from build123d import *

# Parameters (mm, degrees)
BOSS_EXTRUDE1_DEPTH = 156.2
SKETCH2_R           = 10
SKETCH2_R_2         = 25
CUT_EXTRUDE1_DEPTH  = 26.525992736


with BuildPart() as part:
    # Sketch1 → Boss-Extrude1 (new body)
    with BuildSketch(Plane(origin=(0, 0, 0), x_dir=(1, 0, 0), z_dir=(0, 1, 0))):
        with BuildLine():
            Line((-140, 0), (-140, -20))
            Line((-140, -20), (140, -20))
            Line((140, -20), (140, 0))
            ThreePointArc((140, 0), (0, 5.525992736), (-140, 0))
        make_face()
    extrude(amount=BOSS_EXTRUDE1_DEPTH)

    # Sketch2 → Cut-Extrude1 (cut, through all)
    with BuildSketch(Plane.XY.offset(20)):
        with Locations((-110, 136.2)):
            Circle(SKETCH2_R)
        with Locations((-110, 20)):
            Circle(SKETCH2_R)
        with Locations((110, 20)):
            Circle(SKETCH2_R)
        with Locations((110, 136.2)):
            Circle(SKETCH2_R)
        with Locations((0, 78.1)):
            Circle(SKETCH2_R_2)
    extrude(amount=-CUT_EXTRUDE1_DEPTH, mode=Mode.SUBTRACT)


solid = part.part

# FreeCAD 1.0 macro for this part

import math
import FreeCAD as App
import Part
import Sketcher
from FreeCAD import Vector
Q = App.Units.Quantity

doc = App.newDocument("Part")
body = doc.addObject("PartDesign::Body", "Body")

# Sketch on XZ plane
sketch1 = body.newObject("Sketcher::SketchObject", "Sketch")
sketch1.AttachmentSupport = (doc.getObject("XZ_Plane"), [""])
sketch1.MapMode = "FlatFace"
sketch1.addGeometry([
    Part.LineSegment(Vector(-140, 0, 0), Vector(-140, 20, 0)),
    Part.LineSegment(Vector(-140, 20, 0), Vector(140, 20, 0)),
    Part.LineSegment(Vector(140, 20, 0), Vector(140, 0, 0)),
    Part.ArcOfCircle(Part.Circle(Vector(0, 1771, 0), Vector(0, 0, 1), 1776), math.radians(-94.52), math.radians(-85.48)),
], False)
sketch1.addConstraint([
    Sketcher.Constraint("Coincident", 0, 2, 1, 1),
    Sketcher.Constraint("Coincident", 1, 2, 2, 1),
    Sketcher.Constraint("Coincident", 2, 2, 3, 2),
    Sketcher.Constraint("Coincident", 3, 1, 0, 1),
    Sketcher.Constraint("Vertical", 0),
    Sketcher.Constraint("Horizontal", 1),
    Sketcher.Constraint("Vertical", 2),
    Sketcher.Constraint("PointOnObject", 3, 3, -2),
    Sketcher.Constraint("PointOnObject", 2, 2, -1),
    Sketcher.Constraint("Equal", 0, 2),
    Sketcher.Constraint("Radius", 3, Q("1776.2 mm")),
    Sketcher.Constraint("DistanceX", 1, 1, 1, 2, Q("280 mm")),
    Sketcher.Constraint("DistanceY", 0, 1, 0, 2, Q("20 mm")),
])
pad1 = body.newObject("PartDesign::Pad", "Pad")
pad1.Profile = sketch1
pad1.Length = 156.2
pad1.Reversed = True

# Sketch on XY plane
sketch2 = body.newObject("Sketcher::SketchObject", "Sketch001")
sketch2.AttachmentSupport = (doc.getObject("XY_Plane"), [""])
sketch2.MapMode = "FlatFace"
sketch2.AttachmentOffset = App.Placement(Vector(0, 0, 20), App.Rotation())
sketch2.addGeometry([
    Part.Circle(Vector(-110, 136, 0), Vector(0, 0, 1), 10),  # 0
    Part.Circle(Vector(-110, 20, 0), Vector(0, 0, 1), 10),  # 1
    Part.Circle(Vector(110, 20, 0), Vector(0, 0, 1), 10),  # 2
    Part.Circle(Vector(110, 136, 0), Vector(0, 0, 1), 10),  # 3
    Part.Circle(Vector(0, 78, 0), Vector(0, 0, 1), 25),  # 4
], False)
sketch2.addConstraint([
    Sketcher.Constraint("Equal", 0, 1),
    Sketcher.Constraint("Equal", 1, 2),
    Sketcher.Constraint("Equal", 2, 3),
    Sketcher.Constraint("Symmetric", 1, 3, 2, 3, -2),
    Sketcher.Constraint("Symmetric", 0, 3, 3, 3, -2),
    Sketcher.Constraint("PointOnObject", 4, 3, -2),
    Sketcher.Constraint("Vertical", 0, 3, 1, 3),
    Sketcher.Constraint("Diameter", 0, Q("20 mm")),
    Sketcher.Constraint("Diameter", 4, Q("50 mm")),
    Sketcher.Constraint("DistanceX", 0, 3, -1, 1, Q("110 mm")),
    Sketcher.Constraint("DistanceY", -1, 1, 1, 3, Q("20 mm")),
    Sketcher.Constraint("DistanceY", -1, 1, 0, 3, Q("136.2 mm")),
    Sketcher.Constraint("DistanceY", -1, 1, 4, 3, Q("78.1 mm")),
])
pocket1 = body.newObject("PartDesign::Pocket", "Pocket")
pocket1.Profile = sketch2
pocket1.Type = "ThroughAll"

doc.recompute()
